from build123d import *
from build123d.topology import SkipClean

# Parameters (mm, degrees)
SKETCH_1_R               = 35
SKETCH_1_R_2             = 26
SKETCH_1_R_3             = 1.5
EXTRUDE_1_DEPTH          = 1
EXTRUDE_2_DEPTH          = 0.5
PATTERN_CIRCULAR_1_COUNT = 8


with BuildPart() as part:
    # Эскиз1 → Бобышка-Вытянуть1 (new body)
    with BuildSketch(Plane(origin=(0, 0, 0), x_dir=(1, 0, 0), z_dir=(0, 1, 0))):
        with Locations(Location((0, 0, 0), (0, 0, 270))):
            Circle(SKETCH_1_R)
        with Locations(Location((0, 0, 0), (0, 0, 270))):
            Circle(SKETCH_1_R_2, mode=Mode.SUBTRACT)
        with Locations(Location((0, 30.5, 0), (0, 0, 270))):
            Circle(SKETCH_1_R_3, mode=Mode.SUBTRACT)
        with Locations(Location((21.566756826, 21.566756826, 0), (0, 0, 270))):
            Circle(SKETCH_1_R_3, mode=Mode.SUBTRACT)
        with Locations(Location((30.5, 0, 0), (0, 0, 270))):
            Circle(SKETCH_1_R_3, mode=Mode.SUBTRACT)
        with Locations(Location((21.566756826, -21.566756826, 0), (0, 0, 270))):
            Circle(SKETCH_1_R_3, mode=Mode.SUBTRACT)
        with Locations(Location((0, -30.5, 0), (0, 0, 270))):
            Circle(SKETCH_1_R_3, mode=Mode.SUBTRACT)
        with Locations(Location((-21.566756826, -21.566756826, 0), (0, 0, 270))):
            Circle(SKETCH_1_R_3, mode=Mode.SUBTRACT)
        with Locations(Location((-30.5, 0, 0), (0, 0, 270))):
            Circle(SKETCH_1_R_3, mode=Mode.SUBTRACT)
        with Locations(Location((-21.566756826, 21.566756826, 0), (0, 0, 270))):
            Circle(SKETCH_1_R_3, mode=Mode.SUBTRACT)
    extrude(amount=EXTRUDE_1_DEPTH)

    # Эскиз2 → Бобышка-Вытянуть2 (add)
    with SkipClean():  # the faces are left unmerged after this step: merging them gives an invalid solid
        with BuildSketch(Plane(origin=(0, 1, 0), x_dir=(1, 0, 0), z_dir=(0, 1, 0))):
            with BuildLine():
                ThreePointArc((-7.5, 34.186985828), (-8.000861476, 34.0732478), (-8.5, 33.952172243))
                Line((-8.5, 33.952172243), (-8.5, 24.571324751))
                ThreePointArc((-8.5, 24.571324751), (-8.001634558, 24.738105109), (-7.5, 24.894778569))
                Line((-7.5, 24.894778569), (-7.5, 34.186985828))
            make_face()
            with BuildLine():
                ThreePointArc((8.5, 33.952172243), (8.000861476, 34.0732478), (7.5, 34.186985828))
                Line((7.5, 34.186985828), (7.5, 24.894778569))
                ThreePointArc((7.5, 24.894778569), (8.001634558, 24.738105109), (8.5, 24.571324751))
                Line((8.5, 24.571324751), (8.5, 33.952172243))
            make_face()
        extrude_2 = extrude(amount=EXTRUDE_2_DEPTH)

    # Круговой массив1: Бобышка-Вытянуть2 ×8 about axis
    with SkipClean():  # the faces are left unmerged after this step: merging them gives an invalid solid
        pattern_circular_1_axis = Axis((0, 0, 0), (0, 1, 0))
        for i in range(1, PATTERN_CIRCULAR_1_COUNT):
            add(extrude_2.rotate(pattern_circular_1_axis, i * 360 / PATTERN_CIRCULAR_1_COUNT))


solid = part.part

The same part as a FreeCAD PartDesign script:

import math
import FreeCAD as App
import Part
import Sketcher

V = App.Vector

doc = App.newDocument("Part")
body = doc.addObject("PartDesign::Body", "Body")

sketch1 = body.newObject("Sketcher::SketchObject", "Sketch")
sketch1.AttachmentSupport = (doc.getObject("XZ_Plane"), [""])
sketch1.MapMode = "FlatFace"
sketch1.addGeometry(Part.Circle(V(0, 0, 0), V(0, 0, 1), 35), False)
sketch1.addGeometry(Part.Circle(V(-21.6, -21.6, 0), V(0, 0, 1), 1.5), False)
sketch1.addGeometry(Part.Circle(V(0, -30.5, 0), V(0, 0, 1), 1.5), False)
sketch1.addGeometry(Part.Circle(V(-30.5, 0, 0), V(0, 0, 1), 1.5), False)
sketch1.addGeometry(Part.Circle(V(-21.6, 21.6, 0), V(0, 0, 1), 1.5), False)
sketch1.addGeometry(Part.Circle(V(0, 0, 0), V(0, 0, 1), 26), False)
sketch1.addGeometry(Part.Circle(V(21.6, -21.6, 0), V(0, 0, 1), 1.5), False)
sketch1.addGeometry(Part.Circle(V(30.5, 0, 0), V(0, 0, 1), 1.5), False)
sketch1.addGeometry(Part.Circle(V(0, 30.5, 0), V(0, 0, 1), 1.5), False)
sketch1.addGeometry(Part.Circle(V(21.6, 21.6, 0), V(0, 0, 1), 1.5), False)
sketch1.addConstraint(Sketcher.Constraint("Coincident", 0, 3, -1, 1))
sketch1.addConstraint(Sketcher.Constraint("Coincident", 5, 3, -1, 1))
sketch1.addConstraint(Sketcher.Constraint("Equal", 1, 2))
sketch1.addConstraint(Sketcher.Constraint("Equal", 2, 3))
sketch1.addConstraint(Sketcher.Constraint("Equal", 3, 4))
sketch1.addConstraint(Sketcher.Constraint("Equal", 4, 6))
sketch1.addConstraint(Sketcher.Constraint("Equal", 6, 7))
sketch1.addConstraint(Sketcher.Constraint("Equal", 7, 8))
sketch1.addConstraint(Sketcher.Constraint("Equal", 8, 9))
sketch1.addConstraint(Sketcher.Constraint("Symmetric", 4, 3, 6, 3, -1, 1))
sketch1.addConstraint(Sketcher.Constraint("Symmetric", 3, 3, 7, 3, -1, 1))
sketch1.addConstraint(Sketcher.Constraint("Symmetric", 2, 3, 8, 3, -1, 1))
sketch1.addConstraint(Sketcher.Constraint("Symmetric", 1, 3, 9, 3, -1, 1))
sketch1.addConstraint(Sketcher.Constraint("Symmetric", 1, 3, 6, 3, -2))
sketch1.addConstraint(Sketcher.Constraint("PointOnObject", 2, 3, -2))
sketch1.addConstraint(Sketcher.Constraint("PointOnObject", 3, 3, -1))
sketch1.addConstraint(Sketcher.Constraint("Diameter", 0, 70.0))
sketch1.addConstraint(Sketcher.Constraint("Diameter", 1, 3.0))
sketch1.addConstraint(Sketcher.Constraint("Diameter", 5, 52.0))
sketch1.addConstraint(Sketcher.Constraint("DistanceY", 2, 3, -1, 1, 30.5))
sketch1.addConstraint(Sketcher.Constraint("DistanceX", 3, 3, -1, 1, 30.5))
sketch1.addConstraint(Sketcher.Constraint("DistanceX", 1, 3, -1, 1, 21.566757))
sketch1.addConstraint(Sketcher.Constraint("DistanceY", 1, 3, -1, 1, 21.566757))
pad1 = body.newObject("PartDesign::Pad", "Pad")
pad1.Profile = sketch1
pad1.Length = 1
pad1.Reversed = True

sketch2 = body.newObject("Sketcher::SketchObject", "Sketch001")
sketch2.AttachmentSupport = (doc.getObject("XZ_Plane"), [""])
sketch2.MapMode = "FlatFace"
sketch2.AttachmentOffset = App.Placement(V(0, 0, -1), App.Rotation())
sketch2.addGeometry(Part.ArcOfCircle(Part.Circle(V(0, 0, 0), V(0, 0, 1), 35), math.radians(-104.06), math.radians(-102.37)), False)
sketch2.addGeometry(Part.LineSegment(V(-8.5, -34, 0), V(-8.5, -24.6, 0)), False)
sketch2.addGeometry(Part.ArcOfCircle(Part.Circle(V(0, 0, 0), V(0, 0, 1), 26), math.radians(-109.08), math.radians(-106.77)), False)
sketch2.addGeometry(Part.LineSegment(V(-7.5, -24.9, 0), V(-7.5, -34.2, 0)), False)
sketch2.addGeometry(Part.ArcOfCircle(Part.Circle(V(0, 0, 0), V(0, 0, 1), 35), math.radians(-77.63), math.radians(-75.94)), False)
sketch2.addGeometry(Part.LineSegment(V(7.5, -34.2, 0), V(7.5, -24.9, 0)), False)
sketch2.addGeometry(Part.ArcOfCircle(Part.Circle(V(0, 0, 0), V(0, 0, 1), 26), math.radians(-73.23), math.radians(-70.92)), False)
sketch2.addGeometry(Part.LineSegment(V(8.5, -24.6, 0), V(8.5, -34, 0)), False)
sketch2.addConstraint(Sketcher.Constraint("Coincident", 0, 1, 1, 1))
sketch2.addConstraint(Sketcher.Constraint("Coincident", 1, 2, 2, 1))
sketch2.addConstraint(Sketcher.Constraint("Coincident", 2, 2, 3, 1))
sketch2.addConstraint(Sketcher.Constraint("Coincident", 3, 2, 0, 2))
sketch2.addConstraint(Sketcher.Constraint("Coincident", 4, 1, 5, 1))
sketch2.addConstraint(Sketcher.Constraint("Coincident", 5, 2, 6, 1))
sketch2.addConstraint(Sketcher.Constraint("Coincident", 6, 2, 7, 1))
sketch2.addConstraint(Sketcher.Constraint("Coincident", 7, 2, 4, 2))
sketch2.addConstraint(Sketcher.Constraint("Vertical", 1))
sketch2.addConstraint(Sketcher.Constraint("Vertical", 3))
sketch2.addConstraint(Sketcher.Constraint("Vertical", 5))
sketch2.addConstraint(Sketcher.Constraint("Vertical", 7))
sketch2.addConstraint(Sketcher.Constraint("Coincident", 0, 3, -1, 1))
sketch2.addConstraint(Sketcher.Constraint("Coincident", 2, 3, -1, 1))
sketch2.addConstraint(Sketcher.Constraint("Coincident", 4, 3, -1, 1))
sketch2.addConstraint(Sketcher.Constraint("Coincident", 6, 3, -1, 1))
sketch2.addConstraint(Sketcher.Constraint("Equal", 0, 4))
sketch2.addConstraint(Sketcher.Constraint("Equal", 2, 6))
sketch2.addConstraint(Sketcher.Constraint("Horizontal", 3, 2, 4, 1))
sketch2.addConstraint(Sketcher.Constraint("Horizontal", 1, 2, 6, 2))
sketch2.addConstraint(Sketcher.Constraint("Radius", 0, 35.000002))
sketch2.addConstraint(Sketcher.Constraint("DistanceX", 1, 2, 2, 2, 1.0))
sketch2.addConstraint(Sketcher.Constraint("DistanceX", 3, 2, 4, 1, 15.0))
sketch2.addConstraint(Sketcher.Constraint("Radius", 2, 26.000002))
pad2 = body.newObject("PartDesign::Pad", "Pad001")
pad2.Profile = sketch2
pad2.Length = 0.5
pad2.Reversed = True
doc.recompute()

polarpattern = body.newObject("PartDesign::PolarPattern", "PolarPattern")
polarpattern.Originals = [pad2]
polarpattern.Axis = (doc.getObject("Y_Axis"), [""])
polarpattern.Angle = 360
polarpattern.Occurrences = 8
body.Tip = polarpattern

doc.recompute()
